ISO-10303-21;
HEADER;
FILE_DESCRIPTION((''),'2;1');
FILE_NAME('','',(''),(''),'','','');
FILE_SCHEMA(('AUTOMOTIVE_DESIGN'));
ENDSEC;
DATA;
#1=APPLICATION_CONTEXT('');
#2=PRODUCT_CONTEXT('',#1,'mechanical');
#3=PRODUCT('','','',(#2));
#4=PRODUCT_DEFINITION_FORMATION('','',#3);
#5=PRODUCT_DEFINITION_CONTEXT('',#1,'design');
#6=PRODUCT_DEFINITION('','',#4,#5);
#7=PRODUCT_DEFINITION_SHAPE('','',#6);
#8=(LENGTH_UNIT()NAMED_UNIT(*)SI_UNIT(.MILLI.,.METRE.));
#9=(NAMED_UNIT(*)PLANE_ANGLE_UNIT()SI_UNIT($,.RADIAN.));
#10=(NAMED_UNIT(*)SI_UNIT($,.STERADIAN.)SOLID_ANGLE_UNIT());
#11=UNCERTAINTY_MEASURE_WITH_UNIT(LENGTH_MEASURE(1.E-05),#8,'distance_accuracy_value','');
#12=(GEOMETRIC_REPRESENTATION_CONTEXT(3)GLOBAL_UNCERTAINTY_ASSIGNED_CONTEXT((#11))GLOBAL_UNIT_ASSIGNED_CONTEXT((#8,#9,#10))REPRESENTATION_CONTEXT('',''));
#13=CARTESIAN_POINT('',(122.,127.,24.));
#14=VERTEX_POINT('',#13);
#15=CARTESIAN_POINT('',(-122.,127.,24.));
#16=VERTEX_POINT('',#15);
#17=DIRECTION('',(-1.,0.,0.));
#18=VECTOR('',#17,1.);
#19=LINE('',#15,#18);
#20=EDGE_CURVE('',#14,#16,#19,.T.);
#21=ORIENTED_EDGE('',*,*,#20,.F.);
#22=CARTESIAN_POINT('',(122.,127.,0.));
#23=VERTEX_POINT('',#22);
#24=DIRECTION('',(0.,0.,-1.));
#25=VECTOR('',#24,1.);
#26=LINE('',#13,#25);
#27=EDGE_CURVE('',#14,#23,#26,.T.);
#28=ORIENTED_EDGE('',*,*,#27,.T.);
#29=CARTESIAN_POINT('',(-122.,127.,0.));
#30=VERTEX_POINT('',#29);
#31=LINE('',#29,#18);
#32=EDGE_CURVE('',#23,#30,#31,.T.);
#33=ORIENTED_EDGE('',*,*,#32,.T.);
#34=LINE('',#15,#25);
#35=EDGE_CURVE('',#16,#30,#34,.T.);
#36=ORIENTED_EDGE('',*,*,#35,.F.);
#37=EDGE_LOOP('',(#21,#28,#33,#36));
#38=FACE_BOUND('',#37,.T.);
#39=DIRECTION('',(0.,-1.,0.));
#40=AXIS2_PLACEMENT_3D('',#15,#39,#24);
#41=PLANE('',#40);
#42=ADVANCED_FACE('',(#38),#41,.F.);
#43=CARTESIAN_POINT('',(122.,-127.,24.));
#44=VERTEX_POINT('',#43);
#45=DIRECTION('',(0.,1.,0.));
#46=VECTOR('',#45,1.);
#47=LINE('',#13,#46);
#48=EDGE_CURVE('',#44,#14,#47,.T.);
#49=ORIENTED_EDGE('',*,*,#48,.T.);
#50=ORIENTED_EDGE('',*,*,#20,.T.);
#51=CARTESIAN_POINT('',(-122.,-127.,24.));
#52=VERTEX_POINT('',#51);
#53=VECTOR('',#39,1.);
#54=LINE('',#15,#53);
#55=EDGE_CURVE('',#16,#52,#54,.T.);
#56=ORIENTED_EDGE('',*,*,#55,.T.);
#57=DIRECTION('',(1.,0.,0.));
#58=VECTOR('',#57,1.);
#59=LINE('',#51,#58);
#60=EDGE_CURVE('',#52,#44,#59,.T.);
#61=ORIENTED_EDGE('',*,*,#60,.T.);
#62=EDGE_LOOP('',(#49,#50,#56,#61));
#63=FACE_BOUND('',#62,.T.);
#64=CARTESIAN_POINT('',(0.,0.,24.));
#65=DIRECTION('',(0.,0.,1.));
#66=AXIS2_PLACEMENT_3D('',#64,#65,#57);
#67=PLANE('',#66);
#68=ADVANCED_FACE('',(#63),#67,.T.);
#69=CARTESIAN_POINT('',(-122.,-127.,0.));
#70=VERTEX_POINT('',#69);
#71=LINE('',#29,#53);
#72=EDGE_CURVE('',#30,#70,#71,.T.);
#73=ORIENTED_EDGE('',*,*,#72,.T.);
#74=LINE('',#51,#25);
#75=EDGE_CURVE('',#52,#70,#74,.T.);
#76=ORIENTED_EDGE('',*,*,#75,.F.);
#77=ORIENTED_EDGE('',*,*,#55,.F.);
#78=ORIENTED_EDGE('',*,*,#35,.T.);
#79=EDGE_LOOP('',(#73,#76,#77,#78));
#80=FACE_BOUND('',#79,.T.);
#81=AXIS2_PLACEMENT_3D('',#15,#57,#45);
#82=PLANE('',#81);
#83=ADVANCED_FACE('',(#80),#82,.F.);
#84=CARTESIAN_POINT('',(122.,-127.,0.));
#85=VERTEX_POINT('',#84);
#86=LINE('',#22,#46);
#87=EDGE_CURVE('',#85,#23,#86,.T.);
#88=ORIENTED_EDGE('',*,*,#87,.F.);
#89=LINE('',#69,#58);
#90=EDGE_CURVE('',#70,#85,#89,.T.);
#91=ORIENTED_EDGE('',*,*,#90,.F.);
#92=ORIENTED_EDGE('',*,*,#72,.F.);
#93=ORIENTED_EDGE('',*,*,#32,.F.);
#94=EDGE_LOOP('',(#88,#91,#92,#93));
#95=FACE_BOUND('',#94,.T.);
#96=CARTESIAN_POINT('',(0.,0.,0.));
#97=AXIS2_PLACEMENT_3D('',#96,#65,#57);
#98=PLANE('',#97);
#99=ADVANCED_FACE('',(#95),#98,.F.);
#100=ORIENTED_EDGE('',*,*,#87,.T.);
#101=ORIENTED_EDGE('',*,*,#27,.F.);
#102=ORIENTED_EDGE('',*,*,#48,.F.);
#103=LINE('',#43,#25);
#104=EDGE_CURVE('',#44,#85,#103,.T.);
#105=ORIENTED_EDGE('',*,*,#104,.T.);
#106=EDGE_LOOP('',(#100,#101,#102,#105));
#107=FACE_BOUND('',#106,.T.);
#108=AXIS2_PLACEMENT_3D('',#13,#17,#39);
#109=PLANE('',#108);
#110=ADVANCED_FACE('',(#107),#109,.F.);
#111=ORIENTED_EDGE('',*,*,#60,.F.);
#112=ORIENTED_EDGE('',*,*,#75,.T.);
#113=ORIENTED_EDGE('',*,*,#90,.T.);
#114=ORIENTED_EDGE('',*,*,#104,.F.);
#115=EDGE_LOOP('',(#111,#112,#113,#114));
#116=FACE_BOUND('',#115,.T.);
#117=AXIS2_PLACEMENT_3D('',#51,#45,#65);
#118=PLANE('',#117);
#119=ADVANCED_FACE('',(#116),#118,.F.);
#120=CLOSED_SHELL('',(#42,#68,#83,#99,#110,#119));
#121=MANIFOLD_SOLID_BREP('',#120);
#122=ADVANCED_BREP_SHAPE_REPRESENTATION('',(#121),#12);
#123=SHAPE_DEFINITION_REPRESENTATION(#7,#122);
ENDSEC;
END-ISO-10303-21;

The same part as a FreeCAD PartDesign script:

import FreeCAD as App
import Part
import Sketcher

V = App.Vector
Q = App.Units.Quantity

doc = App.newDocument("Part")
params = doc.addObject("Spreadsheet::Sheet", "Params")
for row, (alias, value) in enumerate([
    ("sketch1_width", "244 mm"),
    ("sketch1_height", "254 mm"),
    ("pad1_length", "24 mm"),
], start=1):
    params.set(f"A{row}", alias)
    params.set(f"B{row}", "=" + value)
    params.setAlias(f"B{row}", alias)

body = doc.addObject("PartDesign::Body", "Body")

sketch1 = body.newObject("Sketcher::SketchObject", "Sketch")
sketch1.AttachmentSupport = (doc.getObject("XY_Plane"), [""])
sketch1.MapMode = "FlatFace"
sketch1.addGeometry([
    Part.LineSegment(V(-122, 127, 0), V(-122, -127, 0)),
    Part.LineSegment(V(-122, -127, 0), V(122, -127, 0)),
    Part.LineSegment(V(122, -127, 0), V(122, 127, 0)),
    Part.LineSegment(V(122, 127, 0), V(-122, 127, 0)),
], False)
sketch1.addConstraint([
    Sketcher.Constraint("Coincident", 0, 2, 1, 1),
    Sketcher.Constraint("Coincident", 1, 2, 2, 1),
    Sketcher.Constraint("Coincident", 2, 2, 3, 1),
    Sketcher.Constraint("Coincident", 3, 2, 0, 1),
    Sketcher.Constraint("Vertical", 0),
    Sketcher.Constraint("Horizontal", 1),
    Sketcher.Constraint("Vertical", 2),
    Sketcher.Constraint("Horizontal", 3),
    Sketcher.Constraint("Symmetric", 0, 2, 2, 2, -1, 1),
    Sketcher.Constraint("DistanceX", 1, 1, 1, 2, Q("244 mm")),
    Sketcher.Constraint("DistanceY", 0, 2, 0, 1, Q("254 mm")),
])
sketch1.setExpression("Constraints[9]", "Params.sketch1_width")
sketch1.setExpression("Constraints[10]", "Params.sketch1_height")
pad1 = body.newObject("PartDesign::Pad", "Pad")
pad1.Profile = sketch1
pad1.setExpression("Length", "Params.pad1_length")

doc.recompute()
